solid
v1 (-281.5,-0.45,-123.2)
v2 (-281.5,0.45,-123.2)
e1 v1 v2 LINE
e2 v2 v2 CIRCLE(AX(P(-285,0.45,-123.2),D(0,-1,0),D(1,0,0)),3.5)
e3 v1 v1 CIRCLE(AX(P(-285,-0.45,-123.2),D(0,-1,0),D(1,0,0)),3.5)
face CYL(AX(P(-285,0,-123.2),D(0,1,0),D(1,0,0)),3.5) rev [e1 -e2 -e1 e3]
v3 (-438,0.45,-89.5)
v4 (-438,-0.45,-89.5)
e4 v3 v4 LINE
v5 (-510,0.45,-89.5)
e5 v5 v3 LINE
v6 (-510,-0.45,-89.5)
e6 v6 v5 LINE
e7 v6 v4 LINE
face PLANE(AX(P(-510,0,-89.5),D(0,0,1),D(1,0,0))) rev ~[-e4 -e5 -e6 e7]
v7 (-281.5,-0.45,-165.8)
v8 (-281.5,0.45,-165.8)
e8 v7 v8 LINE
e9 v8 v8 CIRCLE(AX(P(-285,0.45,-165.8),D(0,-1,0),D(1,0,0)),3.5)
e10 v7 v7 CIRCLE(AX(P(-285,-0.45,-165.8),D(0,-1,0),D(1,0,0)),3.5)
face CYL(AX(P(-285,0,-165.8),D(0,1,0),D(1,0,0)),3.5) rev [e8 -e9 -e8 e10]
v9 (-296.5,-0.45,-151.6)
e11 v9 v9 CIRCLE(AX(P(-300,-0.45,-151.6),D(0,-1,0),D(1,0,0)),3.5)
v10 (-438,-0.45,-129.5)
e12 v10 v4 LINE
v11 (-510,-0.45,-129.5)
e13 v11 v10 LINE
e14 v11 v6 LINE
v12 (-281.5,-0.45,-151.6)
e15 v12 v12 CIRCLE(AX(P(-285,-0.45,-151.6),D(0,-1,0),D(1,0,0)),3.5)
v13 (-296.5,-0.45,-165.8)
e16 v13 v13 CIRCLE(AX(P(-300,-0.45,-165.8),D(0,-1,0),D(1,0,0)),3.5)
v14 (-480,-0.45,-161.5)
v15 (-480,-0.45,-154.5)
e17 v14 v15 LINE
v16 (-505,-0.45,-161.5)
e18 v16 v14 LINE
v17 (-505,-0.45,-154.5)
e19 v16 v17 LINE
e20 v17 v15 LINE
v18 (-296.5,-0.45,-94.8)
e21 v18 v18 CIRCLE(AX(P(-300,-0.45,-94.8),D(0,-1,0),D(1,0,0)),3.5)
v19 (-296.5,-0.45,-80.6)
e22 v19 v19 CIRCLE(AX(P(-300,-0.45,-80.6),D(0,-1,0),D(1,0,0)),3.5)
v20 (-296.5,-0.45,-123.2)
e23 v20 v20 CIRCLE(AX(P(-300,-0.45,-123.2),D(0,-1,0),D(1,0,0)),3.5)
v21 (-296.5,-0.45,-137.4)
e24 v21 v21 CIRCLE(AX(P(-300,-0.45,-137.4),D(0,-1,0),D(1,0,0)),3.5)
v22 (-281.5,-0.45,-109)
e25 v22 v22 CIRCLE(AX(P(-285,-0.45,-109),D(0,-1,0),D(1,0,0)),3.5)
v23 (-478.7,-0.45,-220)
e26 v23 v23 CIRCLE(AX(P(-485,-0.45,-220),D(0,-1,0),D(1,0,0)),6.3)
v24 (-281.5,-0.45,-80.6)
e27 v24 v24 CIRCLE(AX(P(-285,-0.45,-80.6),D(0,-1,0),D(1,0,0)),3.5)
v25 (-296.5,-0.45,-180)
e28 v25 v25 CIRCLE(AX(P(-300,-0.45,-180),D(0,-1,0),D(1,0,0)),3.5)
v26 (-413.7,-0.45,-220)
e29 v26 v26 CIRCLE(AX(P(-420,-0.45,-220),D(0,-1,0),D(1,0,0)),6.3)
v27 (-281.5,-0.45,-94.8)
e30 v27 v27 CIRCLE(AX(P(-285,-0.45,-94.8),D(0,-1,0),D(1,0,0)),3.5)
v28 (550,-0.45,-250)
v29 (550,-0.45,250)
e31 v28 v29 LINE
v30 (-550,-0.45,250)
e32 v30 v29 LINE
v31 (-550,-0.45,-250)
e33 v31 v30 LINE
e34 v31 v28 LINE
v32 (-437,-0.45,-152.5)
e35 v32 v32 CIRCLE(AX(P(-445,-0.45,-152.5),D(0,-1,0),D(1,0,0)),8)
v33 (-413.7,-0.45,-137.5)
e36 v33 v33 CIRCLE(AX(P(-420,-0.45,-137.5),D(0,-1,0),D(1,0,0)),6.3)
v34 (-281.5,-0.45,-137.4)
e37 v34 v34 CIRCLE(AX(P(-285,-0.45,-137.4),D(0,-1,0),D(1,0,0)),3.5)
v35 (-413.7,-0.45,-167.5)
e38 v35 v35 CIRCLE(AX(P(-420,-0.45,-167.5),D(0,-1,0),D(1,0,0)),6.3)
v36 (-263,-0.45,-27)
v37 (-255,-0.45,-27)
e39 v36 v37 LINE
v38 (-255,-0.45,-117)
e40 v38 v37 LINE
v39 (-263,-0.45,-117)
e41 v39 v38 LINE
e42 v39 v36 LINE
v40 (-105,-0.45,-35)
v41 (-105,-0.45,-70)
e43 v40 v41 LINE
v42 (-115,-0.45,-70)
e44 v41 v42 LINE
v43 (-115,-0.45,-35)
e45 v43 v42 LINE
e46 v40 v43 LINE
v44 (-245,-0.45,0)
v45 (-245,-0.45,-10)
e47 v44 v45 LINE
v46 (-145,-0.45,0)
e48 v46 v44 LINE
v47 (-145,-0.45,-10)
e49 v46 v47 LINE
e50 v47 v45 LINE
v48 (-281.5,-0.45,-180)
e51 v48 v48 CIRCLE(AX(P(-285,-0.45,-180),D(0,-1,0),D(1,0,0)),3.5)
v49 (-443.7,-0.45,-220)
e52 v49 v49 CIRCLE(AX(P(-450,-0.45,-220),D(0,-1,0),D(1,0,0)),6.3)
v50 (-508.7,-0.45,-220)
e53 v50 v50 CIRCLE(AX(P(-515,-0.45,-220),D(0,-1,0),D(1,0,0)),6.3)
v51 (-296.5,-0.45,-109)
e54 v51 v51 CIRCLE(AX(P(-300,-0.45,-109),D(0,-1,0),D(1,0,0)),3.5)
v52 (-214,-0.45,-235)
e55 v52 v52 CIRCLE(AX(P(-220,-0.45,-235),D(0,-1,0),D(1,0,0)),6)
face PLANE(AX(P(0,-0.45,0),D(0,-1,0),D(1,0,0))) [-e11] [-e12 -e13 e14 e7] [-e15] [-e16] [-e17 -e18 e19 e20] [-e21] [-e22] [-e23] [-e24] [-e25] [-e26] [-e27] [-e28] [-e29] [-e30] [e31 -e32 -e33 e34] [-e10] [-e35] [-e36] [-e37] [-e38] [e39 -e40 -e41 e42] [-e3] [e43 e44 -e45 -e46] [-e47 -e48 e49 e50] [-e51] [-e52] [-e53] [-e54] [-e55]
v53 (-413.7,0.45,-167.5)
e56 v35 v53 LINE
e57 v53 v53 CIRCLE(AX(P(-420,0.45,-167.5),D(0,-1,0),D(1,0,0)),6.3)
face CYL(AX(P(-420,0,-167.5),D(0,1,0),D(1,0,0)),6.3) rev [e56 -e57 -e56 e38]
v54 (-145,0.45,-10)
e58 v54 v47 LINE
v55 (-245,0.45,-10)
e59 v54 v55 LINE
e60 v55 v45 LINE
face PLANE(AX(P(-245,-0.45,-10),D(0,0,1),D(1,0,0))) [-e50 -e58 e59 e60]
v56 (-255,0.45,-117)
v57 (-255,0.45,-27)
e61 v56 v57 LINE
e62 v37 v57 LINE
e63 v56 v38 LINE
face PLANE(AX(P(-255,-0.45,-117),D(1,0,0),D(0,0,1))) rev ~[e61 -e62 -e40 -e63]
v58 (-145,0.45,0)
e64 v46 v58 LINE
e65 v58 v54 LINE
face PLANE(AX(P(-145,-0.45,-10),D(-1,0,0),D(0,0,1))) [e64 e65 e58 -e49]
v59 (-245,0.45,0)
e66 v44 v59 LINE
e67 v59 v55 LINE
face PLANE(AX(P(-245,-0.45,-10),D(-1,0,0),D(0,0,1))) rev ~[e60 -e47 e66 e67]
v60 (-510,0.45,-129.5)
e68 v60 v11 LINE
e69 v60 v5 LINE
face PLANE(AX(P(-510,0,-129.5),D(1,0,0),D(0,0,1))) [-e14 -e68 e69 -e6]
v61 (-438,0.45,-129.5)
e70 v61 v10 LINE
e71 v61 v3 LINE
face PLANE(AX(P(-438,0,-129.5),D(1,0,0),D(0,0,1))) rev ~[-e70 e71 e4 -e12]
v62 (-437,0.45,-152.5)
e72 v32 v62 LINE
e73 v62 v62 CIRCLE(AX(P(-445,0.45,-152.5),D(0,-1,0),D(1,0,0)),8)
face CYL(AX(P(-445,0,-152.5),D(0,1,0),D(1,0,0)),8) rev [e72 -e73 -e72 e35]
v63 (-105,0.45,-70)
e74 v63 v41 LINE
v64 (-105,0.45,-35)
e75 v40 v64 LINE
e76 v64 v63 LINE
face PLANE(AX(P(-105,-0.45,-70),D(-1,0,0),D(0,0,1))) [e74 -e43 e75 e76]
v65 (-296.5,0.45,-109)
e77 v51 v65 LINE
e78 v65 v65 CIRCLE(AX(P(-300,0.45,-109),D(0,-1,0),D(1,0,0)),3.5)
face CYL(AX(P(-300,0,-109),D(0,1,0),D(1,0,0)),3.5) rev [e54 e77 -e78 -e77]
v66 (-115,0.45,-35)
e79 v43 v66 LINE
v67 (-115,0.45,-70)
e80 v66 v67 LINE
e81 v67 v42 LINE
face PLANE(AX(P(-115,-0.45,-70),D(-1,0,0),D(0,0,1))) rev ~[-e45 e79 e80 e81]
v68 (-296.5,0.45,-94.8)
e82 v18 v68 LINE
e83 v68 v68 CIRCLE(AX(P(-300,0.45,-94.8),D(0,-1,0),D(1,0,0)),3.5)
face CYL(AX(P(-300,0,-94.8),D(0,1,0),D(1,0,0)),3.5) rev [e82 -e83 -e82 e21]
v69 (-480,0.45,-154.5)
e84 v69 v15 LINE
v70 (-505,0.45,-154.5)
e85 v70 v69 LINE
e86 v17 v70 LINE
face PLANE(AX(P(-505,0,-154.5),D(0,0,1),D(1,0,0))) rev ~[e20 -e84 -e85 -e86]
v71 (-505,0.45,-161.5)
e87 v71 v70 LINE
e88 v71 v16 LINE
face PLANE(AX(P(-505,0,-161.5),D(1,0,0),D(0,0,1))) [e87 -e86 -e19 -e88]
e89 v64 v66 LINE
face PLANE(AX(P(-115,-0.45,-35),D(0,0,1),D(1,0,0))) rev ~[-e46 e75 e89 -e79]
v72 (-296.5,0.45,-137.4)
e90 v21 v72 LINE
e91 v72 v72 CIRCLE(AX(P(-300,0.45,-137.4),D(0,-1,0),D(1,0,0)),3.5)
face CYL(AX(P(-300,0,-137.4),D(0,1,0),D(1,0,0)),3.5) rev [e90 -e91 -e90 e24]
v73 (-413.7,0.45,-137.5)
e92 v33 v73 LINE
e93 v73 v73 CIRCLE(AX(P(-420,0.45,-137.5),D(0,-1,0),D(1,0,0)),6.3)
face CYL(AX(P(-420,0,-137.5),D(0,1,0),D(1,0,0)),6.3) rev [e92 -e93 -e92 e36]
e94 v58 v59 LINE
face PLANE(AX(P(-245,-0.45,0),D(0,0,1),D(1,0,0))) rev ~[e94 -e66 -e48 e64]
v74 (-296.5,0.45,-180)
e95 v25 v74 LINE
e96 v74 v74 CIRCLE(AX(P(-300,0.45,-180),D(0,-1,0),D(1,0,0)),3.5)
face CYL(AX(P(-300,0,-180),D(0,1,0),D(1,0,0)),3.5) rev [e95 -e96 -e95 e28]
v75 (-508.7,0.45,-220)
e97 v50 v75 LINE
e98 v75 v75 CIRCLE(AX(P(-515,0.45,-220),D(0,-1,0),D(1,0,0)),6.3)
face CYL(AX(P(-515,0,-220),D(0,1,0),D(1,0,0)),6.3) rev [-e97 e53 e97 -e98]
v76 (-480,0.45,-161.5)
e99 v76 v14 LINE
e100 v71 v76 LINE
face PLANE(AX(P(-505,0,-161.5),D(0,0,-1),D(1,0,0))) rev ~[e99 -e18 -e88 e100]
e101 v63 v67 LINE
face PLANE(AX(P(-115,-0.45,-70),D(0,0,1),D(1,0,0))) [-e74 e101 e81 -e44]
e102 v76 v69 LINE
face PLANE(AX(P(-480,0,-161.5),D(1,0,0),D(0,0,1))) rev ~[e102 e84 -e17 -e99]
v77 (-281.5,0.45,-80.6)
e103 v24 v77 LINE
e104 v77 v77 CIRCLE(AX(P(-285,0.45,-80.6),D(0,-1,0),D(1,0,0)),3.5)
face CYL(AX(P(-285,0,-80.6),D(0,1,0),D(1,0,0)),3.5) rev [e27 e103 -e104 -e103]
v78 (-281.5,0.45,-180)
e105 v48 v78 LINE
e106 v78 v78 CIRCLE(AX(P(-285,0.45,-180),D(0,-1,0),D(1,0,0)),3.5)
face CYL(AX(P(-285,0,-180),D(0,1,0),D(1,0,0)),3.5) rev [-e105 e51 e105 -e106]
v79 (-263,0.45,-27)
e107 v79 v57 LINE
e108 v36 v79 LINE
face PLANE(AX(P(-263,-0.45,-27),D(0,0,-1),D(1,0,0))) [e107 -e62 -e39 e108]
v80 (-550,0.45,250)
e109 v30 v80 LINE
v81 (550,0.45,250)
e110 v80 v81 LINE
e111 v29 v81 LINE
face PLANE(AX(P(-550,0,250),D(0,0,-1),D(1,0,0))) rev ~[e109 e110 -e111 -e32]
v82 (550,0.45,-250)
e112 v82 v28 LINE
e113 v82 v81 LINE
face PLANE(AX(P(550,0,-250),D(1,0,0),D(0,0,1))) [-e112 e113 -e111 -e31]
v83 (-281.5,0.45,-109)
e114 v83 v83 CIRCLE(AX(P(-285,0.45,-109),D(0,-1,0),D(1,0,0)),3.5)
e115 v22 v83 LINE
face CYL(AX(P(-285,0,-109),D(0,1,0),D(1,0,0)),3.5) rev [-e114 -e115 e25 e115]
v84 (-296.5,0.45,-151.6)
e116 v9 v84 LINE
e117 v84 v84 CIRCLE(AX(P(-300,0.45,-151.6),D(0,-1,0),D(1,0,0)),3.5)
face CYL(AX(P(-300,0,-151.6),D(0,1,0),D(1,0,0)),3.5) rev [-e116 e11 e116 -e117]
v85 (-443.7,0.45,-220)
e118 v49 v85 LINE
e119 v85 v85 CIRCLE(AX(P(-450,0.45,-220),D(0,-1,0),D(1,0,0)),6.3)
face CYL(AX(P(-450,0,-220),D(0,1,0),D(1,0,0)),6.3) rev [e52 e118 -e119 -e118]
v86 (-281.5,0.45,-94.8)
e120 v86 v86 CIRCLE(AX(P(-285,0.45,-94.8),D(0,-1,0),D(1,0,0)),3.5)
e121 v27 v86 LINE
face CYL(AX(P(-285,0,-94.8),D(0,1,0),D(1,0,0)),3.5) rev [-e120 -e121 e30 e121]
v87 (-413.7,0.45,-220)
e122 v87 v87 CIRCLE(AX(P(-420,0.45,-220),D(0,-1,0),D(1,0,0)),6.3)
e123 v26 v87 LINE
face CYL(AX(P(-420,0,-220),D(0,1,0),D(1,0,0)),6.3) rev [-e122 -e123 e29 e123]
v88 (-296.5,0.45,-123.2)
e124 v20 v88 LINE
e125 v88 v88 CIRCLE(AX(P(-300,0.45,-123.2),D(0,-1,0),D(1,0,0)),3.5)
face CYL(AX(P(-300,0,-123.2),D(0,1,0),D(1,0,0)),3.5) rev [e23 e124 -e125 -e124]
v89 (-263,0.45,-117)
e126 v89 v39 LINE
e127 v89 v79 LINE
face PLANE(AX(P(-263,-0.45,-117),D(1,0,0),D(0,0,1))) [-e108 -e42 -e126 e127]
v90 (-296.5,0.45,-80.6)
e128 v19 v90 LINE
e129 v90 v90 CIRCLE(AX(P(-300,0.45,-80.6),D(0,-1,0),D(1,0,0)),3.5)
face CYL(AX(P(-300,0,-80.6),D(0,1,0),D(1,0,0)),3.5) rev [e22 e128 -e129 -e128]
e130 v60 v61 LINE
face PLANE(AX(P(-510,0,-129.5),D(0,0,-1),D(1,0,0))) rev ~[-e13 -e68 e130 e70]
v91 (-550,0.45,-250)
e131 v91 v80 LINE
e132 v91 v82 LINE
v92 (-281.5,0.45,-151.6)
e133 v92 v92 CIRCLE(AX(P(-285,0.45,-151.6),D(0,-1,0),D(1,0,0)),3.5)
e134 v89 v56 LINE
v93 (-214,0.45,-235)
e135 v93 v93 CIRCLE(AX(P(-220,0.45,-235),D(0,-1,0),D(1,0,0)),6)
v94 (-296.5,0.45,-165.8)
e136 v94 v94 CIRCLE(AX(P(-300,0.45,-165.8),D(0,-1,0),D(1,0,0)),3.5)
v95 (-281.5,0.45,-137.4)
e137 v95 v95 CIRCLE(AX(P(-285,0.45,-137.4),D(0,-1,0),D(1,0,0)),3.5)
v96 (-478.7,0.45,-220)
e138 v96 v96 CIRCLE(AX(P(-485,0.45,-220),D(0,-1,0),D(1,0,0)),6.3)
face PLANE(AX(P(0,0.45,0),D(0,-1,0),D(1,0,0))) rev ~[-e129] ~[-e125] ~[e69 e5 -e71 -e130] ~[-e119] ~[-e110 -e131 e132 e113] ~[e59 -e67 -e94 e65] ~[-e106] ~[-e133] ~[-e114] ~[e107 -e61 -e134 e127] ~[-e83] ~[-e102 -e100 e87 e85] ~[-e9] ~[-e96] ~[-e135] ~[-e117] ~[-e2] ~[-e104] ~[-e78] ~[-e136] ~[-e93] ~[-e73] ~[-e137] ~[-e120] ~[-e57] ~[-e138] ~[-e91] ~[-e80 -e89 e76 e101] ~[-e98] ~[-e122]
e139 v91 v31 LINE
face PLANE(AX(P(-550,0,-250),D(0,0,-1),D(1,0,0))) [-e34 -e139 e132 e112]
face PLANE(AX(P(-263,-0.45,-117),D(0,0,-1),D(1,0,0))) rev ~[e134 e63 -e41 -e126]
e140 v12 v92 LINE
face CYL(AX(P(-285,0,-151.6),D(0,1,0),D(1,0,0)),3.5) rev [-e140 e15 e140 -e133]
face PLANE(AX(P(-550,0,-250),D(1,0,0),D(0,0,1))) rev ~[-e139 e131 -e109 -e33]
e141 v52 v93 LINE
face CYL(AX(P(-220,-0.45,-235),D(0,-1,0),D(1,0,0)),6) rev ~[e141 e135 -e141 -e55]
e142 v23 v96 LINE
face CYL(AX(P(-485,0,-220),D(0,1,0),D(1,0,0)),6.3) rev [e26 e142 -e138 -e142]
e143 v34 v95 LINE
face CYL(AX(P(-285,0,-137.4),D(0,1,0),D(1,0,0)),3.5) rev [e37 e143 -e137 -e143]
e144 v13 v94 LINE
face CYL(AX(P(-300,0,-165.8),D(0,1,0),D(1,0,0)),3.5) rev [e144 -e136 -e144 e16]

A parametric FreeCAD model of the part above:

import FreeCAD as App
import Part
import Sketcher


def add_polygon(sketch, points):
    """Adds a closed chain of lines whose ends are joined by coincident constraints."""
    first, n = sketch.GeometryCount, len(points)
    for a, b in zip(points, points[1:] + points[:1]):
        sketch.addGeometry(Part.LineSegment(App.Vector(*a, 0), App.Vector(*b, 0)), False)
    for i in range(n):
        sketch.addConstraint(Sketcher.Constraint("Coincident", first + i, 2, first + (i + 1) % n, 1))

doc = App.newDocument("Part")
body = doc.addObject("PartDesign::Body", "Body")

# Sketch on XZ plane
sketch1 = body.newObject("Sketcher::SketchObject", "Sketch")
sketch1.AttachmentSupport = (doc.getObject("XZ_Plane"), [""])
sketch1.MapMode = "FlatFace"
add_polygon(sketch1, [(-550, 250), (-550, -250), (550, -250), (550, 250)])  # lines 0-3
sketch1.addGeometry(Part.Circle(App.Vector(-515, -220, 0), App.Vector(0, 0, 1), 6.3), False)  # 4
sketch1.addGeometry(Part.Circle(App.Vector(-485, -220, 0), App.Vector(0, 0, 1), 6.3), False)  # 5
sketch1.addGeometry(Part.Circle(App.Vector(-450, -220, 0), App.Vector(0, 0, 1), 6.3), False)  # 6
sketch1.addGeometry(Part.Circle(App.Vector(-420, -220, 0), App.Vector(0, 0, 1), 6.3), False)  # 7
add_polygon(sketch1, [(-480, -161.5), (-505, -161.5), (-505, -154.5), (-480, -154.5)])  # lines 8-11
sketch1.addGeometry(Part.Circle(App.Vector(-445, -152.5, 0), App.Vector(0, 0, 1), 8), False)  # 12
sketch1.addGeometry(Part.Circle(App.Vector(-420, -167.5, 0), App.Vector(0, 0, 1), 6.3), False)  # 13
sketch1.addGeometry(Part.Circle(App.Vector(-300, -180, 0), App.Vector(0, 0, 1), 3.5), False)  # 14
sketch1.addGeometry(Part.Circle(App.Vector(-285, -180, 0), App.Vector(0, 0, 1), 3.5), False)  # 15
sketch1.addGeometry(Part.Circle(App.Vector(-300, -165.8, 0), App.Vector(0, 0, 1), 3.5), False)  # 16
sketch1.addGeometry(Part.Circle(App.Vector(-285, -165.8, 0), App.Vector(0, 0, 1), 3.5), False)  # 17
sketch1.addGeometry(Part.Circle(App.Vector(-420, -137.5, 0), App.Vector(0, 0, 1), 6.3), False)  # 18
add_polygon(sketch1, [(-438, -129.5), (-510, -129.5), (-510, -89.5), (-438, -89.5)])  # lines 19-22
sketch1.addGeometry(Part.Circle(App.Vector(-300, -151.6, 0), App.Vector(0, 0, 1), 3.5), False)  # 23
sketch1.addGeometry(Part.Circle(App.Vector(-285, -151.6, 0), App.Vector(0, 0, 1), 3.5), False)  # 24
sketch1.addGeometry(Part.Circle(App.Vector(-300, -137.4, 0), App.Vector(0, 0, 1), 3.5), False)  # 25
sketch1.addGeometry(Part.Circle(App.Vector(-285, -137.4, 0), App.Vector(0, 0, 1), 3.5), False)  # 26
sketch1.addGeometry(Part.Circle(App.Vector(-300, -123.2, 0), App.Vector(0, 0, 1), 3.5), False)  # 27
sketch1.addGeometry(Part.Circle(App.Vector(-285, -123.2, 0), App.Vector(0, 0, 1), 3.5), False)  # 28
sketch1.addGeometry(Part.Circle(App.Vector(-300, -109, 0), App.Vector(0, 0, 1), 3.5), False)  # 29
sketch1.addGeometry(Part.Circle(App.Vector(-285, -109, 0), App.Vector(0, 0, 1), 3.5), False)  # 30
sketch1.addGeometry(Part.Circle(App.Vector(-300, -94.8, 0), App.Vector(0, 0, 1), 3.5), False)  # 31
sketch1.addGeometry(Part.Circle(App.Vector(-285, -94.8, 0), App.Vector(0, 0, 1), 3.5), False)  # 32
sketch1.addGeometry(Part.Circle(App.Vector(-300, -80.6, 0), App.Vector(0, 0, 1), 3.5), False)  # 33
sketch1.addGeometry(Part.Circle(App.Vector(-285, -80.6, 0), App.Vector(0, 0, 1), 3.5), False)  # 34
sketch1.addConstraint([
    Sketcher.Constraint("Vertical", 0),
    Sketcher.Constraint("Horizontal", 1),
    Sketcher.Constraint("Vertical", 2),
    Sketcher.Constraint("Horizontal", 3),
    Sketcher.Constraint("Horizontal", 8),
    Sketcher.Constraint("Vertical", 9),
    Sketcher.Constraint("Horizontal", 10),
    Sketcher.Constraint("Vertical", 11),
    Sketcher.Constraint("Horizontal", 19),
    Sketcher.Constraint("Vertical", 20),
    Sketcher.Constraint("Horizontal", 21),
    Sketcher.Constraint("Vertical", 22),
    Sketcher.Constraint("Equal", 4, 5),
    Sketcher.Constraint("Equal", 5, 6),
    Sketcher.Constraint("Equal", 6, 7),
    Sketcher.Constraint("Equal", 7, 13),
    Sketcher.Constraint("Equal", 14, 15),
    Sketcher.Constraint("Equal", 15, 16),
    Sketcher.Constraint("Equal", 16, 17),
    Sketcher.Constraint("Equal", 13, 18),
    Sketcher.Constraint("Equal", 17, 23),
    Sketcher.Constraint("Equal", 23, 24),
    Sketcher.Constraint("Equal", 24, 25),
    Sketcher.Constraint("Equal", 25, 26),
    Sketcher.Constraint("Equal", 26, 27),
    Sketcher.Constraint("Equal", 27, 28),
    Sketcher.Constraint("Equal", 28, 29),
    Sketcher.Constraint("Equal", 29, 30),
    Sketcher.Constraint("Equal", 30, 31),
    Sketcher.Constraint("Equal", 31, 32),
    Sketcher.Constraint("Equal", 32, 33),
    Sketcher.Constraint("Equal", 33, 34),
    Sketcher.Constraint("Symmetric", 0, 2, 2, 2, -1, 1),
    Sketcher.Constraint("Horizontal", 4, 3, 5, 3),
    Sketcher.Constraint("Horizontal", 5, 3, 6, 3),
    Sketcher.Constraint("Horizontal", 6, 3, 7, 3),
    Sketcher.Constraint("Horizontal", 14, 3, 15, 3),
    Sketcher.Constraint("Horizontal", 16, 3, 17, 3),
    Sketcher.Constraint("Horizontal", 23, 3, 24, 3),
    Sketcher.Constraint("Horizontal", 25, 3, 26, 3),
    Sketcher.Constraint("Horizontal", 27, 3, 28, 3),
    Sketcher.Constraint("Horizontal", 29, 3, 30, 3),
    Sketcher.Constraint("Horizontal", 31, 3, 32, 3),
    Sketcher.Constraint("Horizontal", 33, 3, 34, 3),
    Sketcher.Constraint("Vertical", 7, 3, 13, 3),
    Sketcher.Constraint("Vertical", 14, 3, 16, 3),
    Sketcher.Constraint("Vertical", 15, 3, 17, 3),
    Sketcher.Constraint("Vertical", 13, 3, 18, 3),
    Sketcher.Constraint("Vertical", 16, 3, 23, 3),
    Sketcher.Constraint("Vertical", 17, 3, 24, 3),
    Sketcher.Constraint("Vertical", 23, 3, 25, 3),
    Sketcher.Constraint("Vertical", 24, 3, 26, 3),
    Sketcher.Constraint("Vertical", 25, 3, 27, 3),
    Sketcher.Constraint("Vertical", 26, 3, 28, 3),
    Sketcher.Constraint("Vertical", 27, 3, 29, 3),
    Sketcher.Constraint("Vertical", 28, 3, 30, 3),
    Sketcher.Constraint("Vertical", 29, 3, 31, 3),
    Sketcher.Constraint("Vertical", 30, 3, 32, 3),
    Sketcher.Constraint("Vertical", 31, 3, 33, 3),
    Sketcher.Constraint("Vertical", 32, 3, 34, 3),
    Sketcher.Constraint("Diameter", 12, 16.0),
    Sketcher.Constraint("Diameter", 14, 7.0),
    Sketcher.Constraint("Diameter", 4, 12.6),
    Sketcher.Constraint("DistanceX", 1, 1, 1, 2, 1100.0),
    Sketcher.Constraint("DistanceX", 8, 2, 8, 1, 25.0),
    Sketcher.Constraint("DistanceX", 19, 2, 19, 1, 72.0),
    Sketcher.Constraint("DistanceY", 0, 2, 0, 1, 500.0),
    Sketcher.Constraint("DistanceY", 9, 1, 9, 2, 7.0),
    Sketcher.Constraint("DistanceY", 20, 1, 20, 2, 40.0),
    Sketcher.Constraint("DistanceX", 4, 3, -1, 1, 515.0),
    Sketcher.Constraint("DistanceY", 4, 3, -1, 1, 220.0),
    Sketcher.Constraint("DistanceX", 5, 3, -1, 1, 485.0),
    Sketcher.Constraint("DistanceX", 6, 3, -1, 1, 450.0),
    Sketcher.Constraint("DistanceX", 7, 3, -1, 1, 420.0),
    Sketcher.Constraint("DistanceX", 12, 3, -1, 1, 445.0),
    Sketcher.Constraint("DistanceX", 14, 3, -1, 1, 300.0),
    Sketcher.Constraint("DistanceY", 14, 3, -1, 1, 180.0),
    Sketcher.Constraint("DistanceX", 15, 3, -1, 1, 285.0),
    Sketcher.Constraint("DistanceY", 29, 3, -1, 1, 109.0),
    Sketcher.Constraint("DistanceX", 8, 2, -1, 1, 505.0),
    Sketcher.Constraint("DistanceX", 19, 2, -1, 1, 510.0),
    Sketcher.Constraint("DistanceY", 13, 3, 12, 3, 15.0),
    Sketcher.Constraint("DistanceY", 12, 3, 18, 3, 15.0),
    Sketcher.Constraint("DistanceY", 8, 2, 12, 3, 9.0),
    Sketcher.Constraint("DistanceY", 9, 2, 19, 2, 25.0),
    Sketcher.Constraint("DistanceY", 12, 3, -1, 1, 152.5),
    Sketcher.Constraint("DistanceY", 16, 3, -1, 1, 165.8),
    Sketcher.Constraint("DistanceY", 23, 3, -1, 1, 151.6),
    Sketcher.Constraint("DistanceY", 25, 3, -1, 1, 137.4),
    Sketcher.Constraint("DistanceY", 27, 3, -1, 1, 123.2),
    Sketcher.Constraint("DistanceY", 31, 3, -1, 1, 94.8),
    Sketcher.Constraint("DistanceY", 33, 3, -1, 1, 80.6),
])
pad1 = body.newObject("PartDesign::Pad", "Pad")
pad1.Profile = sketch1
pad1.Length = 0.9
pad1.Midplane = True

# Sketch on XZ plane
sketch2 = body.newObject("Sketcher::SketchObject", "Sketch001")
sketch2.AttachmentSupport = (doc.getObject("XZ_Plane"), [""])
sketch2.MapMode = "FlatFace"
sketch2.AttachmentOffset = App.Placement(App.Vector(0, 0, 0.45), App.Rotation())
sketch2.addGeometry(Part.Circle(App.Vector(-220, -235, 0), App.Vector(0, 0, 1), 6), False)  # 0
add_polygon(sketch2, [(-115, -35), (-115, -70), (-105, -70), (-105, -35)])  # lines 1-4
add_polygon(sketch2, [(-245, 0), (-245, -10), (-145, -10), (-145, 0)])  # lines 5-8
add_polygon(sketch2, [(-263, -27), (-263, -117), (-255, -117), (-255, -27)])  # lines 9-12
sketch2.addConstraint([
    Sketcher.Constraint("Vertical", 1),
    Sketcher.Constraint("Horizontal", 2),
    Sketcher.Constraint("Vertical", 3),
    Sketcher.Constraint("Horizontal", 4),
    Sketcher.Constraint("Vertical", 5),
    Sketcher.Constraint("Horizontal", 6),
    Sketcher.Constraint("Vertical", 7),
    Sketcher.Constraint("Horizontal", 8),
    Sketcher.Constraint("Vertical", 9),
    Sketcher.Constraint("Horizontal", 10),
    Sketcher.Constraint("Vertical", 11),
    Sketcher.Constraint("Horizontal", 12),
    Sketcher.Constraint("PointOnObject", 7, 2, -1),
    Sketcher.Constraint("Equal", 4, 5),
    Sketcher.Constraint("Diameter", 0, 12.0),
    Sketcher.Constraint("DistanceX", 2, 1, 2, 2, 10.0),
    Sketcher.Constraint("DistanceX", 6, 1, 6, 2, 100.0),
    Sketcher.Constraint("DistanceX", 10, 1, 10, 2, 8.0),
    Sketcher.Constraint("DistanceY", 1, 2, 1, 1, 35.0),
    Sketcher.Constraint("DistanceY", 9, 2, 9, 1, 90.0),
    Sketcher.Constraint("DistanceX", 0, 3, -1, 1, 220.0),
    Sketcher.Constraint("DistanceY", 0, 3, -1, 1, 235.0),
    Sketcher.Constraint("DistanceX", 1, 2, -1, 1, 115.0),
    Sketcher.Constraint("DistanceY", 1, 2, -1, 1, 70.0),
    Sketcher.Constraint("DistanceX", 5, 2, -1, 1, 245.0),
    Sketcher.Constraint("DistanceX", 9, 2, -1, 1, 263.0),
    Sketcher.Constraint("DistanceY", 9, 2, -1, 1, 117.0),
])
pocket1 = body.newObject("PartDesign::Pocket", "Pocket")
pocket1.Profile = sketch2
pocket1.Length = 25
pocket1.Midplane = True

doc.recompute()
